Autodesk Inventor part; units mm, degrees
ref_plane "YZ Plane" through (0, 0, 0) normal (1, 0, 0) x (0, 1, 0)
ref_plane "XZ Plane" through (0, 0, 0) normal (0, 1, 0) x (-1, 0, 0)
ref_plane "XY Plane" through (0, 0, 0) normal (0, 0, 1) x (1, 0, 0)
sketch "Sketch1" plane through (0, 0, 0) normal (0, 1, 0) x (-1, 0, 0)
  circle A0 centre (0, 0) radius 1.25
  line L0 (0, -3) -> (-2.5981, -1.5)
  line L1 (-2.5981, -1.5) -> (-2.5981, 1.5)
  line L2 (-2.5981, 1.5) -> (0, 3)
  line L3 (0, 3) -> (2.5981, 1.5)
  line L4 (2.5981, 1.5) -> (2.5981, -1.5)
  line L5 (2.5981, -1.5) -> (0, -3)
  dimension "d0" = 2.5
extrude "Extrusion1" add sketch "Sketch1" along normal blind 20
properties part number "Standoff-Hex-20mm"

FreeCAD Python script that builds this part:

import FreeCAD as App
import Part
import Sketcher

V = App.Vector
Q = App.Units.Quantity


def add_polygon(sketch, points):
    """Adds a closed chain of lines whose ends are joined by coincident constraints."""
    first, n = sketch.GeometryCount, len(points)
    for a, b in zip(points, points[1:] + points[:1]):
        sketch.addGeometry(Part.LineSegment(App.Vector(*a, 0), App.Vector(*b, 0)), False)
    for i in range(n):
        sketch.addConstraint(Sketcher.Constraint("Coincident", first + i, 2, first + (i + 1) % n, 1))

doc = App.newDocument("Part")
body = doc.addObject("PartDesign::Body", "Body")

sketch1 = body.newObject("Sketcher::SketchObject", "Sketch")
sketch1.AttachmentSupport = (doc.getObject("XZ_Plane"), [""])
sketch1.MapMode = "FlatFace"
add_polygon(sketch1, [(2.6, -1.5), (0, -3), (-2.6, -1.5), (-2.6, 1.5), (0, 3), (2.6, 1.5)])
sketch1.addGeometry(Part.Circle(V(0, 0, 0), V(0, 0, 1), 1.2), False)
sketch1.addConstraint([
    Sketcher.Constraint("Vertical", 2),
    Sketcher.Constraint("Vertical", 5),
    Sketcher.Constraint("Coincident", 6, 3, -1, 1),
    Sketcher.Constraint("Symmetric", 0, 2, 3, 2, -1, 1),
    Sketcher.Constraint("Symmetric", 1, 2, 4, 2, -1, 1),
    Sketcher.Constraint("PointOnObject", 0, 2, -2),
    Sketcher.Constraint("Parallel", 0, 3),
    Sketcher.Constraint("Horizontal", 2, 2, 4, 2),
    Sketcher.Constraint("Diameter", 6, 2.5),
    Sketcher.Constraint("DistanceY", 2, 1, 2, 2, 3.0),
    Sketcher.Constraint("Angle", 0, Q("-150.0002 deg")),
    Sketcher.Constraint("Distance", 0, 3.0),
])
pad1 = body.newObject("PartDesign::Pad", "Pad")
pad1.Profile = sketch1
pad1.Length = 20
pad1.Reversed = True

doc.recompute()
